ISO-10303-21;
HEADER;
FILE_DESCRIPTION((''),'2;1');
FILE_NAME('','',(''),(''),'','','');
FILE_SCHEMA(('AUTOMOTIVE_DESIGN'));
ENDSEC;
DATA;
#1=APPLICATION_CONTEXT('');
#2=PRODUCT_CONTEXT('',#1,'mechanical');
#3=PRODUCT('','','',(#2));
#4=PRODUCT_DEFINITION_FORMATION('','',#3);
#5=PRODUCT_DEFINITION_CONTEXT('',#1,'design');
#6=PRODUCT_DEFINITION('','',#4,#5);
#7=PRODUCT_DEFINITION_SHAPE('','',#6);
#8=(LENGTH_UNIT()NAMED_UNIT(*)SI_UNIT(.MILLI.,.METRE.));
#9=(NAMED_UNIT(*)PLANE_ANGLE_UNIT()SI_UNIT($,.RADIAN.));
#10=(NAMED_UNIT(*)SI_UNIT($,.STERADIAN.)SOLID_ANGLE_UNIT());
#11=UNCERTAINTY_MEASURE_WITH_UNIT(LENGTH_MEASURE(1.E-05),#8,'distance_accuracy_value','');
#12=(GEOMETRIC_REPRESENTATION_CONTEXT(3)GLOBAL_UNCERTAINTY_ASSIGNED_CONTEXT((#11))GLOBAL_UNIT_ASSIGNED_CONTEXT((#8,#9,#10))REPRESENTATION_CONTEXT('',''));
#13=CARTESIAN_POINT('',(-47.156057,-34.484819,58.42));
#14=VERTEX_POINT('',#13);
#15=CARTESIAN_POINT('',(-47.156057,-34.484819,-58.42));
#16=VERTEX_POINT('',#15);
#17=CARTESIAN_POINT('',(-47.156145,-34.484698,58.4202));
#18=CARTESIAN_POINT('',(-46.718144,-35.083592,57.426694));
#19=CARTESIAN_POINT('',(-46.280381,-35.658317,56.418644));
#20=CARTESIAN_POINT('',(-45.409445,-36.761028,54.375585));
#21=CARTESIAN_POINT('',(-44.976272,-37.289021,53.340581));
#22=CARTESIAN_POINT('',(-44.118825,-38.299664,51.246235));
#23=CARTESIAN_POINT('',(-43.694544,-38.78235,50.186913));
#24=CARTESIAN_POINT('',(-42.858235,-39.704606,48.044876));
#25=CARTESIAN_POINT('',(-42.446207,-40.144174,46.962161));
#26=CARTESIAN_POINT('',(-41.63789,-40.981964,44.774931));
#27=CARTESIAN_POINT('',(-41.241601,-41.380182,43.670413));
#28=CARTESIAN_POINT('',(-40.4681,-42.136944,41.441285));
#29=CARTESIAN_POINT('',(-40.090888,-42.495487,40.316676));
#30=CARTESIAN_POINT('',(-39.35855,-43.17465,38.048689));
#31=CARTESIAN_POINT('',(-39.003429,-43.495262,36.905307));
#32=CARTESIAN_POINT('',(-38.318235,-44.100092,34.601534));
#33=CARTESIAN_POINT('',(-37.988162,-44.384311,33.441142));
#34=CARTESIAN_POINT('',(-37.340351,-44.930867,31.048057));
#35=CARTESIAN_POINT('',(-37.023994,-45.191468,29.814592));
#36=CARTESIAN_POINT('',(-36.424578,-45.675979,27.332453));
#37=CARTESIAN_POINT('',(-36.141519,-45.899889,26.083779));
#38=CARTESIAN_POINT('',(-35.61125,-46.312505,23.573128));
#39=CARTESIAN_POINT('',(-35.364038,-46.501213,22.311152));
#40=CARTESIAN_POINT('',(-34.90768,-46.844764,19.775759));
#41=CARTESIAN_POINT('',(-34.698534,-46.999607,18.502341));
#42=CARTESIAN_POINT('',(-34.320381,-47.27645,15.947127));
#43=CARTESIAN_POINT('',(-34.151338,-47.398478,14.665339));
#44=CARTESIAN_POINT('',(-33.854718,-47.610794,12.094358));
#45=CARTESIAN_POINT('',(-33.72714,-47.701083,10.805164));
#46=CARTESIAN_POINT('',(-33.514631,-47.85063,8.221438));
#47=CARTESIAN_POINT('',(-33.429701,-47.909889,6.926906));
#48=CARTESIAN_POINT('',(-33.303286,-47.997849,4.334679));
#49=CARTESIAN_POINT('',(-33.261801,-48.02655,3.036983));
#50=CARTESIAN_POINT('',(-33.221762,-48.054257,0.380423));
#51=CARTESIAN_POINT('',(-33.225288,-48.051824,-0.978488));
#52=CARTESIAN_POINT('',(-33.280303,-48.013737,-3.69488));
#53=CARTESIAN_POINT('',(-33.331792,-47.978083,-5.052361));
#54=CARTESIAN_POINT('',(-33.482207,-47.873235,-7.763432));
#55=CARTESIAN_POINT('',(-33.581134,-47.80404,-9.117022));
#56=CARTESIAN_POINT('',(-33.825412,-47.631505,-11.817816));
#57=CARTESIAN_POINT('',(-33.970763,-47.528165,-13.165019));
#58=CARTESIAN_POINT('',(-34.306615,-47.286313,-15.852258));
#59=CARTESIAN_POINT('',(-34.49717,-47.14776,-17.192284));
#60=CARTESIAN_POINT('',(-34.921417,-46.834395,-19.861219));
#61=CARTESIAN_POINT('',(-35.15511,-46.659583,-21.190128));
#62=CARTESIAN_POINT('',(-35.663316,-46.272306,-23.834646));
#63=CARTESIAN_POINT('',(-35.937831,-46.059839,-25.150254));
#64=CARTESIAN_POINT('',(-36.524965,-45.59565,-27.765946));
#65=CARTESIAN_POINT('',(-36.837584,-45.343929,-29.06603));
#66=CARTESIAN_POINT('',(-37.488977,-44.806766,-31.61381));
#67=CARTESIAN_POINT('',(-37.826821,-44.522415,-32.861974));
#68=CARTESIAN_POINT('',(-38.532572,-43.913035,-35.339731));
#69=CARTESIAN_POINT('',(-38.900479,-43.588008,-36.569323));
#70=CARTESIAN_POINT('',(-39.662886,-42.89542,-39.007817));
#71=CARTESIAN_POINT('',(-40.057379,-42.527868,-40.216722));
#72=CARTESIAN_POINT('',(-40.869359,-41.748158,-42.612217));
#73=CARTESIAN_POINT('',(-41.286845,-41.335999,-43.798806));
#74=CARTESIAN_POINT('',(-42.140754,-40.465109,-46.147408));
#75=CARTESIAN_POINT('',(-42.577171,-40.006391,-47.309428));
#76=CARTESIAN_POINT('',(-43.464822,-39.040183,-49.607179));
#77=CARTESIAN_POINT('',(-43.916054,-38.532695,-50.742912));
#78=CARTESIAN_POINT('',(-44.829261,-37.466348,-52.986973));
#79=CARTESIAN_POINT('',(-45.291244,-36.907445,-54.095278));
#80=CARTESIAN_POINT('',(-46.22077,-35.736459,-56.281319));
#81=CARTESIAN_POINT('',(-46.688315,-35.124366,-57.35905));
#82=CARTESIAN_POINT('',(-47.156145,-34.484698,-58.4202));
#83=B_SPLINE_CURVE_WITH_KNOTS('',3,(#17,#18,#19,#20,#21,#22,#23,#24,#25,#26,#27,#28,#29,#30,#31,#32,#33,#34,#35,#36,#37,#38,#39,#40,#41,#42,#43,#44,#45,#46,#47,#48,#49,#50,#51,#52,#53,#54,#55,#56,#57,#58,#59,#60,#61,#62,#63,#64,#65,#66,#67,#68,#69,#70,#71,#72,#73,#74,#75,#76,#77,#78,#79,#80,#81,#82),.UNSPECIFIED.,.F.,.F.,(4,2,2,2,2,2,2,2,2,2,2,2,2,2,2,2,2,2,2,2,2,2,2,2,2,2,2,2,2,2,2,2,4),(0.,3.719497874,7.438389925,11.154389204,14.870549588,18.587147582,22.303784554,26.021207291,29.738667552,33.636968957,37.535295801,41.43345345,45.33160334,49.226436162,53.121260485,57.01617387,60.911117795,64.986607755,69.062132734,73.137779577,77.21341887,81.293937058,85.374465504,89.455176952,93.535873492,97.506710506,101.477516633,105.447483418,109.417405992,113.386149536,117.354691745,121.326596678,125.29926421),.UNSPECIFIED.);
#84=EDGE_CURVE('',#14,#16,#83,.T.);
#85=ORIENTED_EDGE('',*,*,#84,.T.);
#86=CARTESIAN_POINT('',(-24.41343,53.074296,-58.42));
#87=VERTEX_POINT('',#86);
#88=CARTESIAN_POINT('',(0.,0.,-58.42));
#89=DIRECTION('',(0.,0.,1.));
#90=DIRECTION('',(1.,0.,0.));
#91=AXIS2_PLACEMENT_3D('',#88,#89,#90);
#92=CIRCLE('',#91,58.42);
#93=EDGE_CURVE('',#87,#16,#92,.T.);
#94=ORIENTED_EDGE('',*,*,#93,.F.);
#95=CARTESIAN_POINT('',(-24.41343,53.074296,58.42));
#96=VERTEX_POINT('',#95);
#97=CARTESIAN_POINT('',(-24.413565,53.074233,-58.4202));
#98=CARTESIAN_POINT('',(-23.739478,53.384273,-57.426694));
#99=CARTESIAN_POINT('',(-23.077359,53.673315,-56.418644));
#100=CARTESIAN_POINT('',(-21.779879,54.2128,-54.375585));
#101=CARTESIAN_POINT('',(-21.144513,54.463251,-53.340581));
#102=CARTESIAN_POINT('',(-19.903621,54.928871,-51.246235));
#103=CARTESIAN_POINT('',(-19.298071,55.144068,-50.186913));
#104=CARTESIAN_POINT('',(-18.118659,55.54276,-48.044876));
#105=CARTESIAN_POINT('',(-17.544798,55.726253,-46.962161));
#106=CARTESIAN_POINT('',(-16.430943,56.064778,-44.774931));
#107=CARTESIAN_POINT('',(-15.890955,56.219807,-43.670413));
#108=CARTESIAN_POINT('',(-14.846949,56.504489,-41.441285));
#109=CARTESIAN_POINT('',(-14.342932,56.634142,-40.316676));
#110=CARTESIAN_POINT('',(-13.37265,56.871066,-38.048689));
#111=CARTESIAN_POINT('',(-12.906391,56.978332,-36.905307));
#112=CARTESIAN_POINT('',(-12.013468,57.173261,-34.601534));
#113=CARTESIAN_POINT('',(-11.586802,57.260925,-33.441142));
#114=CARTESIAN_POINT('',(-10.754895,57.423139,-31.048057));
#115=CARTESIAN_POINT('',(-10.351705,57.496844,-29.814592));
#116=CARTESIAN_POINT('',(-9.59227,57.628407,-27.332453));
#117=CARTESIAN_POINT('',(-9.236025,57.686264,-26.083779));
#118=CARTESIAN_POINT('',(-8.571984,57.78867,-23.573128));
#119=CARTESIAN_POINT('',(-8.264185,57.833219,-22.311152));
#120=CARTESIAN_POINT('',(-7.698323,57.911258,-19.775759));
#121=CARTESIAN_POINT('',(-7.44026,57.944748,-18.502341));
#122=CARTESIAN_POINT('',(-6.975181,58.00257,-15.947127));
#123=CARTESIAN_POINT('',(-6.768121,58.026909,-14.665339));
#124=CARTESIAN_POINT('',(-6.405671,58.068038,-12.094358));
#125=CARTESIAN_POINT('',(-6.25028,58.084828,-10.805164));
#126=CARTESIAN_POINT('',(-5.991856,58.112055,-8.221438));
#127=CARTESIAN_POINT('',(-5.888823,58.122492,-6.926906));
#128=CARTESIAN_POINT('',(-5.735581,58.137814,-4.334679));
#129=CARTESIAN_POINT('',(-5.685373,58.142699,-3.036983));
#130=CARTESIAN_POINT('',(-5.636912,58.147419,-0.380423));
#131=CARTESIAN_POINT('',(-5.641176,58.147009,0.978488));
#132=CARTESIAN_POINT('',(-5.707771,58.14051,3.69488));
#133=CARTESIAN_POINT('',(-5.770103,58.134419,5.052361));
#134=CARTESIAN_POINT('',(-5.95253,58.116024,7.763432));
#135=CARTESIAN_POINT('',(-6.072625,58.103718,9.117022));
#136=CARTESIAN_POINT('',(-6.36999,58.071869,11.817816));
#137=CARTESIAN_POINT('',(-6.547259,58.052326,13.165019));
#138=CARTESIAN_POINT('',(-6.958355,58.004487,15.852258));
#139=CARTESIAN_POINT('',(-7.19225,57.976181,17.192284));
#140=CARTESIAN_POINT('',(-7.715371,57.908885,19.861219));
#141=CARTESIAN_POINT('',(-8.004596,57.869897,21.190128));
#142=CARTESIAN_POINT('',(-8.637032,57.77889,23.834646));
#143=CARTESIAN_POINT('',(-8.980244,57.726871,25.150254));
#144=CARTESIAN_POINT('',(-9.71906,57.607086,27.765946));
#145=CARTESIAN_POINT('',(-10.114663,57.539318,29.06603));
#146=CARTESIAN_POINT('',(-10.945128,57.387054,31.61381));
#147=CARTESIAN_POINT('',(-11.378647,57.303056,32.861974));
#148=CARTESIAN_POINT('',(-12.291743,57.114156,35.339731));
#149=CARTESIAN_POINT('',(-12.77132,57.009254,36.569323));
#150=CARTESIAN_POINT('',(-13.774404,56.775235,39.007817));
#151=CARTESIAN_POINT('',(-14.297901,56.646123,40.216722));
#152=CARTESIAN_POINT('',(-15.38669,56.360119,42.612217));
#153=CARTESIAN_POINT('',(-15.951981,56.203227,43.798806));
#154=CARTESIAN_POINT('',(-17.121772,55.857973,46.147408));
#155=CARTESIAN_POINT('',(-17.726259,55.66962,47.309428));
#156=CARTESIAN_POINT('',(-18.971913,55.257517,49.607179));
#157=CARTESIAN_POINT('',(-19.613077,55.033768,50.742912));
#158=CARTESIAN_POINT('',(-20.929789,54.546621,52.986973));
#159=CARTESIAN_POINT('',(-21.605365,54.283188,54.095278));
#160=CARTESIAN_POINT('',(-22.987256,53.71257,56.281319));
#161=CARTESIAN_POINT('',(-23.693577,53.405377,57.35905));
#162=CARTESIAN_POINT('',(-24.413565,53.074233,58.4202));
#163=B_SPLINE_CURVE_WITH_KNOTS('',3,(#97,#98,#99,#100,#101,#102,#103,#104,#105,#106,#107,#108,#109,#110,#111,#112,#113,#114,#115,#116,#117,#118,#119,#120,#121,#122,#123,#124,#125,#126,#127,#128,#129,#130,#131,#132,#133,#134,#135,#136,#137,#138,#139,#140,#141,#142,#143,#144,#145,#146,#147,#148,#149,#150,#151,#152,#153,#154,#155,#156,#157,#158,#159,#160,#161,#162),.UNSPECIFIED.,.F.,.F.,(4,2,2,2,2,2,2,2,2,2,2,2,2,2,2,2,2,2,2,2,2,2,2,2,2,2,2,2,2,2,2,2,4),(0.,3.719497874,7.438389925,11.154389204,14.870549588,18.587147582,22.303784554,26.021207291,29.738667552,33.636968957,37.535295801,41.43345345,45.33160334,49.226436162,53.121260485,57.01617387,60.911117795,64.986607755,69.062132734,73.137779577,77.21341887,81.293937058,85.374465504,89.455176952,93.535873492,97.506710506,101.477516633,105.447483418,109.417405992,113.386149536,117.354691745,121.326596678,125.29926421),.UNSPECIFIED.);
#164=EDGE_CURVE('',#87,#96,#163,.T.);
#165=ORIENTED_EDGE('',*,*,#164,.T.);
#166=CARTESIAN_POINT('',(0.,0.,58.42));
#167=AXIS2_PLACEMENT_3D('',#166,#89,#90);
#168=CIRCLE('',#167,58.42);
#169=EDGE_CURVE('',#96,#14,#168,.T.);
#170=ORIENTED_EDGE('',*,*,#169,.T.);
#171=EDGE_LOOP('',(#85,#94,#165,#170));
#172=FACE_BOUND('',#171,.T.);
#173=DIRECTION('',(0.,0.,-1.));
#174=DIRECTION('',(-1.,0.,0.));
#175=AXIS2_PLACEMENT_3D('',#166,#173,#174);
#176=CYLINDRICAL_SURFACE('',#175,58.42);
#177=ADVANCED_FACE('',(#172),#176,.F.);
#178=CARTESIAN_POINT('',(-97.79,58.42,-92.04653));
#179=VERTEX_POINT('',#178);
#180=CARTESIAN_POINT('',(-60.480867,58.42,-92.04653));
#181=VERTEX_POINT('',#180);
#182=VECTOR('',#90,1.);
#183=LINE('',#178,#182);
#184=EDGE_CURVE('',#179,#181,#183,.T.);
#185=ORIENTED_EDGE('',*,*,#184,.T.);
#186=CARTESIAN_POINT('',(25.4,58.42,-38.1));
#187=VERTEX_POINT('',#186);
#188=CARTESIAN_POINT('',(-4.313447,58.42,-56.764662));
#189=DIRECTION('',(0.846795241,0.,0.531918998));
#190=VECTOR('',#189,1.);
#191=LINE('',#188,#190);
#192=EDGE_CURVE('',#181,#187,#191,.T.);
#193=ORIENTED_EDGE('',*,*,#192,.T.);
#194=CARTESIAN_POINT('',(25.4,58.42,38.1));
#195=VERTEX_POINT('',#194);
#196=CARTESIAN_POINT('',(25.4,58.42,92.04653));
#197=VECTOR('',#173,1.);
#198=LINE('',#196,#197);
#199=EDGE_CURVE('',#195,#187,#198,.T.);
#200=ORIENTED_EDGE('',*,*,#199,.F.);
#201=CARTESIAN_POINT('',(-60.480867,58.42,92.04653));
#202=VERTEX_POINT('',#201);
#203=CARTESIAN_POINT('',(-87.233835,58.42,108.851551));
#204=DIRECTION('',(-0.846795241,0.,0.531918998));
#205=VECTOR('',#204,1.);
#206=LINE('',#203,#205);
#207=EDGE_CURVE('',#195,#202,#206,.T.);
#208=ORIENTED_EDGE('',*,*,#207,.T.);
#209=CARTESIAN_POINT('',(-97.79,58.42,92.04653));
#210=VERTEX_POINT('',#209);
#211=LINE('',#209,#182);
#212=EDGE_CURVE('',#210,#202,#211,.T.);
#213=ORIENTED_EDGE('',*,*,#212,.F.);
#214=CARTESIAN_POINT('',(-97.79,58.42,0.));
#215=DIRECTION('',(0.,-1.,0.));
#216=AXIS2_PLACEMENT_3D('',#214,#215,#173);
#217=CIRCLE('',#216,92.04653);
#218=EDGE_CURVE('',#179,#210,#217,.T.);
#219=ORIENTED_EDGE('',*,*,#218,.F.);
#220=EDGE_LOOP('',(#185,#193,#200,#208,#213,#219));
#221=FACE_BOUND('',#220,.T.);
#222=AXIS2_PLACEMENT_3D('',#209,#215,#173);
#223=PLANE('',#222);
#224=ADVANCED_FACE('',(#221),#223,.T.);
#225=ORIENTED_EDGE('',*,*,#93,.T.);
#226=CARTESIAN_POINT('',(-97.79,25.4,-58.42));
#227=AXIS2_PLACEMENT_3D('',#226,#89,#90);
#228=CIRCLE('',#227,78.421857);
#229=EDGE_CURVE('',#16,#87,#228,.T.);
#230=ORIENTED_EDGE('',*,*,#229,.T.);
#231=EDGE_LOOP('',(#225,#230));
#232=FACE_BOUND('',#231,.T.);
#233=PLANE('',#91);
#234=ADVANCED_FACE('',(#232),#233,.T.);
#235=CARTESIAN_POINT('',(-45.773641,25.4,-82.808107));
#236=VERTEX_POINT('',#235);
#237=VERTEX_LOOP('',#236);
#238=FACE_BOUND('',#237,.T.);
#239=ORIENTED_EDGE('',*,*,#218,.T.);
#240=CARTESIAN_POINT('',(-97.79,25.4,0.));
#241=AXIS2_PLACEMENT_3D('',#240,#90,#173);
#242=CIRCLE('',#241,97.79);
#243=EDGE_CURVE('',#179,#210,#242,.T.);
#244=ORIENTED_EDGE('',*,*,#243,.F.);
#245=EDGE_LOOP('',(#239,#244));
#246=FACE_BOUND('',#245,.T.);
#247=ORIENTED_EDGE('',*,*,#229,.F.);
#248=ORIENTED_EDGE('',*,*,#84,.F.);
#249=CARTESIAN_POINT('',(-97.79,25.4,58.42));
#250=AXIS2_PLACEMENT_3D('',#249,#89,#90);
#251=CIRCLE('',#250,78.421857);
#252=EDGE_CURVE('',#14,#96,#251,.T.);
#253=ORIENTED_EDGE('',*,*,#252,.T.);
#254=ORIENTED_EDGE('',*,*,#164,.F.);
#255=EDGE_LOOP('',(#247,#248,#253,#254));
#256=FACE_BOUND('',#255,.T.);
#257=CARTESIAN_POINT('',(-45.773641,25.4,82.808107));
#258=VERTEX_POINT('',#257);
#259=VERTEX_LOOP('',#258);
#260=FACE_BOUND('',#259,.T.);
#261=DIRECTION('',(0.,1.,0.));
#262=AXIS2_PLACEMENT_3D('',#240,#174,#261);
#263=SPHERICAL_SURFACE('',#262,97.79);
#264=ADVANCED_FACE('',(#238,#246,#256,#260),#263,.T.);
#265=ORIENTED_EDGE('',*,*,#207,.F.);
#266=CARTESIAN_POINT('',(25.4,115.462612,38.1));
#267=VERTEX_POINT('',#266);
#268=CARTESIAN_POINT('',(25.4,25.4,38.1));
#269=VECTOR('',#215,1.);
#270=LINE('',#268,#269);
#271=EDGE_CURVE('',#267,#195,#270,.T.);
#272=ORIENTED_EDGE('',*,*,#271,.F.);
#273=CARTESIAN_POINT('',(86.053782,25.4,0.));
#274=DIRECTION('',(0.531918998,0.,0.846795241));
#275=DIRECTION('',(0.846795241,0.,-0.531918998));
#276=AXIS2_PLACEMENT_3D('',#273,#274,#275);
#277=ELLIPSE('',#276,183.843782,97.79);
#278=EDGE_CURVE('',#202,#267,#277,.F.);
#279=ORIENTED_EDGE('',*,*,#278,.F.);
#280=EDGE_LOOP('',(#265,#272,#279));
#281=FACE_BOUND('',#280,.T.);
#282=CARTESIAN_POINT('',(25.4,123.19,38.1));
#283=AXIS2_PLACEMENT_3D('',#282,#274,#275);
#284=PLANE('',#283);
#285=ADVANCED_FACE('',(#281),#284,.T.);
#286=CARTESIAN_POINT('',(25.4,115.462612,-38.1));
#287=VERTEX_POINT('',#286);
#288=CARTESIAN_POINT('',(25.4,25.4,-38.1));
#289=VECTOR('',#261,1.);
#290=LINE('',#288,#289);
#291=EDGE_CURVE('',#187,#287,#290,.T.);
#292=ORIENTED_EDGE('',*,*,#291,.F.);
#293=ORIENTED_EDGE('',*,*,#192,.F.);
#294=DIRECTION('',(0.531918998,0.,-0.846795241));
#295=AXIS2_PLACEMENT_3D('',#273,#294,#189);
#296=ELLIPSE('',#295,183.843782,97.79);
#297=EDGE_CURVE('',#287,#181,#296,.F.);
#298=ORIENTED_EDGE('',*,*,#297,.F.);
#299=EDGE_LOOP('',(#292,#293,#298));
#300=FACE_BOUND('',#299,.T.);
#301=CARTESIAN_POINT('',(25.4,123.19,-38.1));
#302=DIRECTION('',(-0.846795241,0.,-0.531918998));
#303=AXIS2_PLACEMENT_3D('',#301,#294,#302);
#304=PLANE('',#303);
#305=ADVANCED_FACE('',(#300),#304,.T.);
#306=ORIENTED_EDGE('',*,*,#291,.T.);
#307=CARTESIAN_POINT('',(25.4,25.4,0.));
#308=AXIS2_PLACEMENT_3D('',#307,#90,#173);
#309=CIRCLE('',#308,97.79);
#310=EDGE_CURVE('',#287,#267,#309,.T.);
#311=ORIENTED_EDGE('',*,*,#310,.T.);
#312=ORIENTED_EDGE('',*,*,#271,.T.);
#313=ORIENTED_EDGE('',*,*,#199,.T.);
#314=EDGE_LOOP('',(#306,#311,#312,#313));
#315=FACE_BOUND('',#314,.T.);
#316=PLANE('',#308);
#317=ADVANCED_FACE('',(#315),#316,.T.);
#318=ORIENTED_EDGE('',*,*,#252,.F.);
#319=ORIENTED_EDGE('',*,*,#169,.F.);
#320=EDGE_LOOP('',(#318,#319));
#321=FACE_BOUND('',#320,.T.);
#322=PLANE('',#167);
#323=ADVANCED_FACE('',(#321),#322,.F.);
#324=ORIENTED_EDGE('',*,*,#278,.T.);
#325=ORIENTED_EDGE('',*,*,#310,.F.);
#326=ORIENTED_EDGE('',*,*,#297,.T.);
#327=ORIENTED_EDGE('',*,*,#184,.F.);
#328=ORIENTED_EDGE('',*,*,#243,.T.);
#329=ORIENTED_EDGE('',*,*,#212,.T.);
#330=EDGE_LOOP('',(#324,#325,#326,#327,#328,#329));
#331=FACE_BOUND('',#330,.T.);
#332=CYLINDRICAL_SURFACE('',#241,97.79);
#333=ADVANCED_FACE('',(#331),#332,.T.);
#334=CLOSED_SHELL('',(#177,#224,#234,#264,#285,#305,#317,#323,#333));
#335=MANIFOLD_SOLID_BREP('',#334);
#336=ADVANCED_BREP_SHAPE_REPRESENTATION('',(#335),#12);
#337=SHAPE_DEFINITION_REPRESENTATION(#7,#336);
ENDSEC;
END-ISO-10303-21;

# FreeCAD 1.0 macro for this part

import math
import FreeCAD as App
import Part
import Sketcher
Q = App.Units.Quantity

doc = App.newDocument("Part")
body = doc.addObject("PartDesign::Body", "Body")

# Sketch on XY plane
sketch1 = body.newObject("Sketcher::SketchObject", "Sketch")
sketch1.AttachmentSupport = (doc.getObject("XY_Plane"), [""])
sketch1.MapMode = "FlatFace"
sketch1.addGeometry(Part.LineSegment(App.Vector(-196, 25, 0), App.Vector(0, 25, 0)), False)
sketch1.addGeometry(Part.ArcOfCircle(Part.Circle(App.Vector(-98, 25, 0), App.Vector(0, 0, 1), 98), math.radians(0), math.radians(180)), False)
sketch1.addGeometry(Part.LineSegment(App.Vector(-196, 25, 0), App.Vector(0, 25, 0)), True)  # axis
sketch1.addConstraint(Sketcher.Constraint("Coincident", 0, 1, 1, 2))
sketch1.addConstraint(Sketcher.Constraint("Coincident", 1, 1, 0, 2))
sketch1.addConstraint(Sketcher.Constraint("Horizontal", 0))
sketch1.addConstraint(Sketcher.Constraint("Horizontal", 2))
sketch1.addConstraint(Sketcher.Constraint("Coincident", 2, 1, 0, 1))
sketch1.addConstraint(Sketcher.Constraint("PointOnObject", 1, 1, -2))
sketch1.addConstraint(Sketcher.Constraint("PointOnObject", 2, 2, -2))
sketch1.addConstraint(Sketcher.Constraint("Horizontal", 1, 3, 0, 1))
sketch1.addConstraint(Sketcher.Constraint("Radius", 1, Q("3.85 in")))
sketch1.addConstraint(Sketcher.Constraint("DistanceY", -1, 1, 1, 3, Q("1 in")))
revolution = body.newObject("PartDesign::Revolution", "Revolution")
revolution.Profile = sketch1
revolution.ReferenceAxis = (sketch1, ["Axis0"])
revolution.Angle = 360

# Sketch on YZ plane
sketch2 = body.newObject("Sketcher::SketchObject", "Sketch001")
sketch2.AttachmentSupport = (doc.getObject("YZ_Plane"), [""])
sketch2.MapMode = "FlatFace"
sketch2.addGeometry(Part.LineSegment(App.Vector(58, 92, 0), App.Vector(58, -92, 0)), False)
sketch2.addGeometry(Part.ArcOfCircle(Part.Circle(App.Vector(25, 0, 0), App.Vector(0, 0, 1), 98), math.radians(-70), math.radians(70)), False)
sketch2.addConstraint(Sketcher.Constraint("Coincident", 0, 1, 1, 2))
sketch2.addConstraint(Sketcher.Constraint("Coincident", 1, 1, 0, 2))
sketch2.addConstraint(Sketcher.Constraint("Vertical", 0))
sketch2.addConstraint(Sketcher.Constraint("PointOnObject", 1, 3, -1))
sketch2.addConstraint(Sketcher.Constraint("Radius", 1, Q("3.85 in")))
sketch2.addConstraint(Sketcher.Constraint("DistanceX", -1, 1, 1, 3, Q("1 in")))
sketch2.addConstraint(Sketcher.Constraint("DistanceX", -1, 1, 0, 1, Q("2.3 in")))
pad1 = body.newObject("PartDesign::Pad", "Pad")
pad1.Profile = sketch2
pad1.Type = "TwoLengths"
pad1.Length = Q("1 in")
pad1.Length2 = Q("3.85 in")

# Sketch on XZ plane
sketch3 = body.newObject("Sketcher::SketchObject", "Sketch002")
sketch3.AttachmentSupport = (doc.getObject("XZ_Plane"), [""])
sketch3.MapMode = "FlatFace"
sketch3.addGeometry(Part.LineSegment(App.Vector(25, -38, 0), App.Vector(25, 38, 0)), False)
sketch3.addGeometry(Part.LineSegment(App.Vector(25, 38, 0), App.Vector(-98, 115, 0)), False)
sketch3.addGeometry(Part.LineSegment(App.Vector(-98, 115, 0), App.Vector(51, 115, 0)), False)
sketch3.addGeometry(Part.LineSegment(App.Vector(51, 115, 0), App.Vector(51, -115, 0)), False)
sketch3.addGeometry(Part.LineSegment(App.Vector(51, -115, 0), App.Vector(-98, -115, 0)), False)
sketch3.addGeometry(Part.LineSegment(App.Vector(-98, -115, 0), App.Vector(25, -38, 0)), False)
sketch3.addConstraint(Sketcher.Constraint("Coincident", 0, 2, 1, 1))
sketch3.addConstraint(Sketcher.Constraint("Coincident", 1, 2, 2, 1))
sketch3.addConstraint(Sketcher.Constraint("Coincident", 2, 2, 3, 1))
sketch3.addConstraint(Sketcher.Constraint("Coincident", 3, 2, 4, 1))
sketch3.addConstraint(Sketcher.Constraint("Coincident", 4, 2, 5, 1))
sketch3.addConstraint(Sketcher.Constraint("Coincident", 5, 2, 0, 1))
sketch3.addConstraint(Sketcher.Constraint("Vertical", 0))
sketch3.addConstraint(Sketcher.Constraint("Horizontal", 2))
sketch3.addConstraint(Sketcher.Constraint("Vertical", 3))
sketch3.addConstraint(Sketcher.Constraint("Horizontal", 4))
sketch3.addConstraint(Sketcher.Constraint("Symmetric", 1, 2, 4, 2, -1))
sketch3.addConstraint(Sketcher.Constraint("Equal", 1, 5))
sketch3.addConstraint(Sketcher.Constraint("DistanceY", 0, 1, 0, 2, Q("3 in")))
sketch3.addConstraint(Sketcher.Constraint("DistanceX", -1, 1, 0, 2, Q("1 in")))
sketch3.addConstraint(Sketcher.Constraint("DistanceX", -1, 1, 2, 2, Q("2 in")))
sketch3.addConstraint(Sketcher.Constraint("DistanceX", 2, 1, 2, 2, Q("5.85 in")))
sketch3.addConstraint(Sketcher.Constraint("DistanceY", 3, 2, 3, 1, Q("230.964926 mm")))
pocket1 = body.newObject("PartDesign::Pocket", "Pocket")
pocket1.Profile = sketch3
pocket1.Type = "ThroughAll"

# Sketch on XY plane
sketch4 = body.newObject("Sketcher::SketchObject", "Sketch003")
sketch4.AttachmentSupport = (doc.getObject("XY_Plane"), [""])
sketch4.MapMode = "FlatFace"
sketch4.addGeometry(Part.Circle(App.Vector(0, 0, 0), App.Vector(0, 0, 1), 58), False)
sketch4.addConstraint(Sketcher.Constraint("Coincident", 0, 3, -1, 1))
sketch4.addConstraint(Sketcher.Constraint("Diameter", 0, Q("4.6 in")))
pocket2 = body.newObject("PartDesign::Pocket", "Pocket001")
pocket2.Profile = sketch4
pocket2.Type = "TwoLengths"
pocket2.Length = Q("2.3 in")
pocket2.Length2 = Q("2.3 in")
pocket2.Reversed = True

doc.recompute()
